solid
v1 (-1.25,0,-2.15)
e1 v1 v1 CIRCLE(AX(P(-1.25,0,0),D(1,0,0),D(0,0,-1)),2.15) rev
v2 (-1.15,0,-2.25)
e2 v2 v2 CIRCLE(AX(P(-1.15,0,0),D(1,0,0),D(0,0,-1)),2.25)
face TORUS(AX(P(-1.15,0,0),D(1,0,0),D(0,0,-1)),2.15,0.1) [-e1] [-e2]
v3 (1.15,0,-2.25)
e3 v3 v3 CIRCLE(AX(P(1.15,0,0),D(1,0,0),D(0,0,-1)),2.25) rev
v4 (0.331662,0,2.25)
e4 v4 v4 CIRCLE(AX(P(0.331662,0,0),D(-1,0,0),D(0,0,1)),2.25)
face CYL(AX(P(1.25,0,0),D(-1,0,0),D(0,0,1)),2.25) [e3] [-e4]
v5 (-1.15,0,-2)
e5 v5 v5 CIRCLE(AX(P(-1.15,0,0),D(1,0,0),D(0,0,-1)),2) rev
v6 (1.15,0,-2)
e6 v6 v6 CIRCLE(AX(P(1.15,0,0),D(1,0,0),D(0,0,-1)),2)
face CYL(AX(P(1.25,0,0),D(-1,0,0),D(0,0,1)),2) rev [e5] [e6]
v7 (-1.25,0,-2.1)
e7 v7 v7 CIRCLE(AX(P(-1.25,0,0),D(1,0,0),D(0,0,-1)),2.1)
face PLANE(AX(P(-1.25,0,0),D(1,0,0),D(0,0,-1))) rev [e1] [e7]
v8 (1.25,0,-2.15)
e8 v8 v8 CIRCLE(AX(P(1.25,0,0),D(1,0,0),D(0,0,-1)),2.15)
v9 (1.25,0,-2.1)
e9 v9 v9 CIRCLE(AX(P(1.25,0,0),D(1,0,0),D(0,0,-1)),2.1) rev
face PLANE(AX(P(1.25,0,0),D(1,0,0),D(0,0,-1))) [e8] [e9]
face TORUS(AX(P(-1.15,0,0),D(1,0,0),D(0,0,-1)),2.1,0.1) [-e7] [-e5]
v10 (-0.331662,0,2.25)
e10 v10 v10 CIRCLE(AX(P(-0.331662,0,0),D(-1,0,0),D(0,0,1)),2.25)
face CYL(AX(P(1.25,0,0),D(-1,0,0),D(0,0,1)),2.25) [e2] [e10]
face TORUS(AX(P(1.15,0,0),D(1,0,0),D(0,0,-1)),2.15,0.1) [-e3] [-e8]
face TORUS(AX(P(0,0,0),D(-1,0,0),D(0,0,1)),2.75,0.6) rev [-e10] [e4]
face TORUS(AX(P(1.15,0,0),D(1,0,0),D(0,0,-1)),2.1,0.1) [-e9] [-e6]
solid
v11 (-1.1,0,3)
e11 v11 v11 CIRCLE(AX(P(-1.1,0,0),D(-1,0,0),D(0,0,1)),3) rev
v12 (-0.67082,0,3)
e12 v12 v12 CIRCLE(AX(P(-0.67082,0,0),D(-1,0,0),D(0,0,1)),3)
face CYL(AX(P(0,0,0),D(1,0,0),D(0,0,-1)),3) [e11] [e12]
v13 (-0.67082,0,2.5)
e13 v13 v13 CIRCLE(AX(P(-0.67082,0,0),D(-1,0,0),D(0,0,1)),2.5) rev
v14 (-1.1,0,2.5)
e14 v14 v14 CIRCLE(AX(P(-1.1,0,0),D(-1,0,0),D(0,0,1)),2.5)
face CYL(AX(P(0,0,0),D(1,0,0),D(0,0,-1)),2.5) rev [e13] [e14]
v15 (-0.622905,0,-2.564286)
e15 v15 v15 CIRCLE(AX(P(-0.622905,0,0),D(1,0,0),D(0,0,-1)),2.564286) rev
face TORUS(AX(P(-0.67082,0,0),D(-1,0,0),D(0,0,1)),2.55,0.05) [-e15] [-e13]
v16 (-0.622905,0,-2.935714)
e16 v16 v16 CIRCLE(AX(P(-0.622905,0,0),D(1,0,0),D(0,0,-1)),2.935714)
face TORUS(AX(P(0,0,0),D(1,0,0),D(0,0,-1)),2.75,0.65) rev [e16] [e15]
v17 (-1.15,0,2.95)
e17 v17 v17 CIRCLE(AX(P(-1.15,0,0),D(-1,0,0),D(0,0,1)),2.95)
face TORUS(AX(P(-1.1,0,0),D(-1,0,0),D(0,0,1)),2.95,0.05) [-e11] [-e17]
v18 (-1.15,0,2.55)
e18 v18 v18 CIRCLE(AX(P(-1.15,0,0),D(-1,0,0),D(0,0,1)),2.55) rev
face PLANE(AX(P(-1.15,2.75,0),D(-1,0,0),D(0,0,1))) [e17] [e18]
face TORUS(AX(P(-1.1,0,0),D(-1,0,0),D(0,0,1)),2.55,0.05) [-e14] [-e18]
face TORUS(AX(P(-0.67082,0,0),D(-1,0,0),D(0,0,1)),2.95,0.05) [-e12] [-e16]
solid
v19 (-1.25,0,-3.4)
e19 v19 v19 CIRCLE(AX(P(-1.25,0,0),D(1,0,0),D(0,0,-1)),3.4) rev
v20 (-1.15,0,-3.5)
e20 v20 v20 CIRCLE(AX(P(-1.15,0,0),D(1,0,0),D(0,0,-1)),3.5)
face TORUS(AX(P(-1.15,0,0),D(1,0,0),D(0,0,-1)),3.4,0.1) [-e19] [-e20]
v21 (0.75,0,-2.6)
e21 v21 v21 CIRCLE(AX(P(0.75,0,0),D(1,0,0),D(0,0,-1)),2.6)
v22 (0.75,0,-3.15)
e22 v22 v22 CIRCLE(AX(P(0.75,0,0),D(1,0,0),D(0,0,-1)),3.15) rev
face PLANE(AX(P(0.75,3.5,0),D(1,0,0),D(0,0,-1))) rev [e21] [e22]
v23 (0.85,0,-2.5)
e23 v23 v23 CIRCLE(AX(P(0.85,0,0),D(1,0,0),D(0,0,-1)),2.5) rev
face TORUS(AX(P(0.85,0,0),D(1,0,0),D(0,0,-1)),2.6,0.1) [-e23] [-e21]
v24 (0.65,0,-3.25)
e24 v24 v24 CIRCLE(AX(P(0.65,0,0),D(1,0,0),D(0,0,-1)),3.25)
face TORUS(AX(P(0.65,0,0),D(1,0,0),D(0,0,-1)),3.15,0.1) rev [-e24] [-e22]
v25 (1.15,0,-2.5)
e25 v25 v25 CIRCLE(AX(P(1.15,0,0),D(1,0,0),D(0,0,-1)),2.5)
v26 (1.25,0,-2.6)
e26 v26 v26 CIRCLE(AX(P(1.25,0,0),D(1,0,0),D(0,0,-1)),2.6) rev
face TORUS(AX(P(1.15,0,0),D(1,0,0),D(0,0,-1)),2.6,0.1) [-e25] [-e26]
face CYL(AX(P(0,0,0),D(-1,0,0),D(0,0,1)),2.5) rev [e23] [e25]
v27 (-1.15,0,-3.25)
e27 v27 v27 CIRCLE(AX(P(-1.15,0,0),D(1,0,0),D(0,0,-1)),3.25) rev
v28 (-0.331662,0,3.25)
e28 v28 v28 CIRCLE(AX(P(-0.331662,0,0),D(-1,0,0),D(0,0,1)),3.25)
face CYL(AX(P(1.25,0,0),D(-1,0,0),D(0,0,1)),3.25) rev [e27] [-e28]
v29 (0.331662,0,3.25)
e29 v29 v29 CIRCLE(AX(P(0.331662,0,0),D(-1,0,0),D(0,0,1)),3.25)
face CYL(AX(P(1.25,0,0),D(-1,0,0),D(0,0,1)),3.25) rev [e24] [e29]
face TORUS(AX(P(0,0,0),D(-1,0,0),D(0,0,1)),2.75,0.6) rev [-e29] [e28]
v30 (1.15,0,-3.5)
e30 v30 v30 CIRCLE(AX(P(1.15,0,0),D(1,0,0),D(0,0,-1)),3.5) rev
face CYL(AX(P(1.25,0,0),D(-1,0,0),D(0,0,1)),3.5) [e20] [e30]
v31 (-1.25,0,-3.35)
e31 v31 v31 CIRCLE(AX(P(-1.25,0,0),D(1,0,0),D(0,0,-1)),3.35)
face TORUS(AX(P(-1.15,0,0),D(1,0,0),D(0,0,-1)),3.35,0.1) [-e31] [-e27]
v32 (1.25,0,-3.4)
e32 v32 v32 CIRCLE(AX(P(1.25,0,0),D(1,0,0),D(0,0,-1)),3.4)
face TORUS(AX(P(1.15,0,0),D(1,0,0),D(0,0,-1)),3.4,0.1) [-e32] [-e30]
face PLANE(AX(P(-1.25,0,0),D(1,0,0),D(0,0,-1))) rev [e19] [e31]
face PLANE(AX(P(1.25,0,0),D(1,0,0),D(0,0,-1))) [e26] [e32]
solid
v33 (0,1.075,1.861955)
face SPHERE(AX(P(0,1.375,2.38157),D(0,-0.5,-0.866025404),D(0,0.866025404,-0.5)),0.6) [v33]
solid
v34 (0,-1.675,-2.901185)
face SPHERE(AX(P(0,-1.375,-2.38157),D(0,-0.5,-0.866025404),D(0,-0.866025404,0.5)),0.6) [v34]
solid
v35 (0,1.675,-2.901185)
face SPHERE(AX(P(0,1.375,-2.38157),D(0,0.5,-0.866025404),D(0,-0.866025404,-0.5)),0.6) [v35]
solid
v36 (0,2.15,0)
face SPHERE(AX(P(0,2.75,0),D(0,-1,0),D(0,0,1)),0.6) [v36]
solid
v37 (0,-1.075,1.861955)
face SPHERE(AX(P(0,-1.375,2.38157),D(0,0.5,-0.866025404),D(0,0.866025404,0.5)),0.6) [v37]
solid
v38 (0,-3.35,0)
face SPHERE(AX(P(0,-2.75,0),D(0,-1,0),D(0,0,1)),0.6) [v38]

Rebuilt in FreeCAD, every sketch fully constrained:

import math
import FreeCAD as App
import Part
import Sketcher
Q = App.Units.Quantity


def edges_at(feature, points):
    """Names of the edges that pass closest to the given points."""
    edges = feature.Shape.Edges
    near = lambda p: min(range(len(edges)), key=lambda i: edges[i].distToShape(Part.Vertex(*p))[0])
    return sorted({f"Edge{near(p) + 1}" for p in points})

doc = App.newDocument("Part")
body = doc.addObject("PartDesign::Body", "Body")

sketch1 = doc.addObject("Sketcher::SketchObject", "Sketch")
body.addObject(sketch1)
sketch1.AttachmentSupport = (doc.YZ_Plane, [""])
sketch1.MapMode = "FlatFace"
sketch1.addGeometry(Part.Circle(App.Vector(0, 0, 0), App.Vector(0, 0, 1), 3.5), False)
sketch1.addGeometry(Part.Circle(App.Vector(0, 0, 0), App.Vector(0, 0, 1), 3.2), False)
sketch1.addConstraint(Sketcher.Constraint("Coincident", 0, 3, -1, 1))
sketch1.addConstraint(Sketcher.Constraint("Coincident", 1, 3, -1, 1))
sketch1.addConstraint(Sketcher.Constraint("Diameter", 0, Q("7 mm")))
sketch1.addConstraint(Sketcher.Constraint("Diameter", 1, Q("6.5 mm")))
pad1 = doc.addObject("PartDesign::Pad", "Pad")
body.addObject(pad1)
pad1.Profile = sketch1
pad1.Length = 2.5
pad1.Midplane = True
body2 = doc.addObject("PartDesign::Body", "Body001")

sketch2 = doc.addObject("Sketcher::SketchObject", "Sketch001")
body2.addObject(sketch2)
sketch2.AttachmentSupport = (doc.getObject("YZ_Plane001"), [""])
sketch2.MapMode = "FlatFace"
sketch2.addGeometry(Part.Circle(App.Vector(0, 0, 0), App.Vector(0, 0, 1), 2.2), False)
sketch2.addGeometry(Part.Circle(App.Vector(0, 0, 0), App.Vector(0, 0, 1), 2), False)
sketch2.addConstraint(Sketcher.Constraint("Coincident", 0, 3, -1, 1))
sketch2.addConstraint(Sketcher.Constraint("Coincident", 1, 3, -1, 1))
sketch2.addConstraint(Sketcher.Constraint("Diameter", 1, Q("4 mm")))
sketch2.addConstraint(Sketcher.Constraint("Diameter", 0, Q("4.5 mm")))
pad2 = doc.addObject("PartDesign::Pad", "Pad001")
body2.addObject(pad2)
pad2.Profile = sketch2
pad2.Length = 2.5
pad2.Midplane = True
body3 = doc.addObject("PartDesign::Body", "Body002")
body3.AllowCompound = True

sketch3 = doc.addObject("Sketcher::SketchObject", "Sketch002")
body3.addObject(sketch3)
sketch3.AttachmentSupport = (doc.getObject("XY_Plane002"), [""])
sketch3.MapMode = "FlatFace"
sketch3.addGeometry(Part.LineSegment(App.Vector(-0.3, 3.2, 0), App.Vector(0.3, 3.2, 0)), False)
sketch3.addGeometry(Part.ArcOfCircle(Part.Circle(App.Vector(0, 2.8, 0), App.Vector(0, 0, 1), 0.6), math.radians(56), math.radians(124)), False)
sketch3.addGeometry(Part.LineSegment(App.Vector(0.3, 2.2, 0), App.Vector(-0.3, 2.2, 0)), False)
sketch3.addGeometry(Part.ArcOfCircle(Part.Circle(App.Vector(0, 2.8, 0), App.Vector(0, 0, 1), 0.6), math.radians(-124), math.radians(-56)), False)
sketch3.addConstraint(Sketcher.Constraint("Coincident", 0, 1, 1, 2))
sketch3.addConstraint(Sketcher.Constraint("Coincident", 1, 1, 0, 2))
sketch3.addConstraint(Sketcher.Constraint("Coincident", 2, 1, 3, 2))
sketch3.addConstraint(Sketcher.Constraint("Coincident", 3, 1, 2, 2))
sketch3.addConstraint(Sketcher.Constraint("Horizontal", 0))
sketch3.addConstraint(Sketcher.Constraint("Horizontal", 2))
sketch3.addConstraint(Sketcher.Constraint("Coincident", 3, 3, 1, 3))
sketch3.addConstraint(Sketcher.Constraint("Equal", 1, 3))
sketch3.addConstraint(Sketcher.Constraint("PointOnObject", 1, 3, -2))
sketch3.addConstraint(Sketcher.Constraint("Vertical", 1, 1, 2, 1))
sketch3.addConstraint(Sketcher.Constraint("Radius", 1, Q("0.6 mm")))
sketch3.addConstraint(Sketcher.Constraint("DistanceY", 2, 1, 1, 1, Q("1 mm")))
sketch3.addConstraint(Sketcher.Constraint("DistanceY", -1, 1, 1, 3, Q("2.75 mm")))
revolution = doc.addObject("PartDesign::Revolution", "Revolution")
body3.addObject(revolution)
revolution.Profile = sketch3
revolution.ReferenceAxis = (sketch3, ["H_Axis"])
revolution.Angle = 360
doc.recompute()

body4 = doc.addObject("PartDesign::Body", "Body003")
body4.BaseFeature = body3
boolean = doc.addObject("PartDesign::Boolean", "Boolean")
body.addObject(boolean)
boolean.Type = "Cut"
boolean.addObjects([body4])
doc.recompute()

sketch4 = doc.addObject("Sketcher::SketchObject", "Sketch003")
body.addObject(sketch4)
sketch4.AttachmentSupport = (doc.XY_Plane, [""])
sketch4.MapMode = "FlatFace"
sketch4.addGeometry(Part.LineSegment(App.Vector(0.8, 3.5, 0), App.Vector(0.8, 2.5, 0)), False)
sketch4.addGeometry(Part.LineSegment(App.Vector(0.8, 2.5, 0), App.Vector(1.2, 2.5, 0)), False)
sketch4.addGeometry(Part.LineSegment(App.Vector(1.2, 2.5, 0), App.Vector(1.2, 3.5, 0)), False)
sketch4.addGeometry(Part.LineSegment(App.Vector(1.2, 3.5, 0), App.Vector(0.8, 3.5, 0)), False)
sketch4.addConstraint(Sketcher.Constraint("Coincident", 0, 2, 1, 1))
sketch4.addConstraint(Sketcher.Constraint("Coincident", 1, 2, 2, 1))
sketch4.addConstraint(Sketcher.Constraint("Coincident", 2, 2, 3, 1))
sketch4.addConstraint(Sketcher.Constraint("Coincident", 3, 2, 0, 1))
sketch4.addConstraint(Sketcher.Constraint("Vertical", 0))
sketch4.addConstraint(Sketcher.Constraint("Horizontal", 1))
sketch4.addConstraint(Sketcher.Constraint("Vertical", 2))
sketch4.addConstraint(Sketcher.Constraint("Horizontal", 3))
sketch4.addConstraint(Sketcher.Constraint("DistanceY", 0, 2, 0, 1, Q("1 mm")))
sketch4.addConstraint(Sketcher.Constraint("DistanceX", 1, 1, 1, 2, Q("0.5 mm")))
sketch4.addConstraint(Sketcher.Constraint("DistanceY", -1, 1, 0, 2, Q("2.5 mm")))
sketch4.addConstraint(Sketcher.Constraint("DistanceX", -1, 1, 0, 2, Q("0.75 mm")))
revolution2 = doc.addObject("PartDesign::Revolution", "Revolution001")
body.addObject(revolution2)
revolution2.Profile = sketch4
revolution2.ReferenceAxis = (sketch4, ["H_Axis"])
revolution2.Angle = 360
doc.recompute()

fillet = doc.addObject("PartDesign::Fillet", "Fillet")
body.addObject(fillet)
fillet.Base = (revolution2, edges_at(revolution2, [
    (0.75, 0, 3.25),
    (1.25, 0, -2.5),
    (0.75, 0, -2.5),
    (-1.25, 0, 3.5),
    (-1.25, 0, 3.25),
    (1.25, 0, 3.5),
]))
fillet.Radius = 0.1
doc.recompute()

boolean2 = doc.addObject("PartDesign::Boolean", "Boolean001")
body2.addObject(boolean2)
boolean2.Type = "Cut"
boolean2.addObjects([body3])
doc.recompute()

fillet2 = doc.addObject("PartDesign::Fillet", "Fillet001")
body2.addObject(fillet2)
fillet2.Base = (boolean2, edges_at(boolean2, [
    (-1.25, 0, 2.25),
    (-1.25, 0, 2),
    (1.25, 0, 2),
    (1.25, 0, 2.25),
]))
fillet2.Radius = 0.1
body5 = doc.addObject("PartDesign::Body", "Body004")
body5.AllowCompound = True

sketch5 = doc.addObject("Sketcher::SketchObject", "Sketch004")
body5.addObject(sketch5)
sketch5.AttachmentSupport = (doc.getObject("YZ_Plane004"), [""])
sketch5.MapMode = "FlatFace"
sketch5.addGeometry(Part.LineSegment(App.Vector(3.4, 0, 0), App.Vector(2.1, 0, 0)), False)
sketch5.addGeometry(Part.ArcOfCircle(Part.Circle(App.Vector(2.8, 0, 0), App.Vector(0, 0, 1), 0.6), math.radians(180), math.radians(360)), False)
sketch5.addGeometry(Part.LineSegment(App.Vector(-3.4, 0, 0), App.Vector(-2.1, 0, 0)), False)
sketch5.addGeometry(Part.ArcOfCircle(Part.Circle(App.Vector(-2.8, 0, 0), App.Vector(0, 0, 1), 0.6), math.radians(0), math.radians(180)), False)
sketch5.addConstraint(Sketcher.Constraint("Coincident", 0, 1, 1, 2))
sketch5.addConstraint(Sketcher.Constraint("Coincident", 1, 1, 0, 2))
sketch5.addConstraint(Sketcher.Constraint("Coincident", 2, 1, 3, 2))
sketch5.addConstraint(Sketcher.Constraint("Coincident", 3, 1, 2, 2))
sketch5.addConstraint(Sketcher.Constraint("Horizontal", 0))
sketch5.addConstraint(Sketcher.Constraint("Horizontal", 2))
sketch5.addConstraint(Sketcher.Constraint("Equal", 1, 3))
sketch5.addConstraint(Sketcher.Constraint("Symmetric", 1, 3, 3, 3, -1, 1))
sketch5.addConstraint(Sketcher.Constraint("PointOnObject", 1, 3, -1))
sketch5.addConstraint(Sketcher.Constraint("PointOnObject", 0, 1, -1))
sketch5.addConstraint(Sketcher.Constraint("PointOnObject", 2, 1, -1))
sketch5.addConstraint(Sketcher.Constraint("Radius", 1, Q("0.6 mm")))
sketch5.addConstraint(Sketcher.Constraint("DistanceX", 3, 3, 1, 3, Q("5.5 mm")))
revolution3 = doc.addObject("PartDesign::Revolution", "Revolution002")
body5.addObject(revolution3)
revolution3.Profile = sketch5
revolution3.ReferenceAxis = (sketch5, ["H_Axis"])
revolution3.Angle = 360
body6 = doc.addObject("PartDesign::Body", "Body005")
body6.AllowCompound = True

sketch6 = doc.addObject("Sketcher::SketchObject", "Sketch005")
body6.addObject(sketch6)
sketch6.AttachmentSupport = (doc.getObject("YZ_Plane005"), [""])
sketch6.MapMode = "FlatFace"
sketch6.addGeometry(Part.LineSegment(App.Vector(1.7, -2.9, 0), App.Vector(1.1, -1.9, 0)), False)
sketch6.addGeometry(Part.ArcOfCircle(Part.Circle(App.Vector(1.4, -2.4, 0), App.Vector(0, 0, 1), 0.6), math.radians(120), math.radians(300)), False)
sketch6.addGeometry(Part.LineSegment(App.Vector(-1.7, 2.9, 0), App.Vector(-1.1, 1.9, 0)), False)
sketch6.addGeometry(Part.ArcOfCircle(Part.Circle(App.Vector(-1.4, 2.4, 0), App.Vector(0, 0, 1), 0.6), math.radians(-60), math.radians(120)), False)
sketch6.addGeometry(Part.LineSegment(App.Vector(1.7, -2.9, 0), App.Vector(-1.7, 2.9, 0)), True)
sketch6.addConstraint(Sketcher.Constraint("Coincident", 0, 1, 1, 2))
sketch6.addConstraint(Sketcher.Constraint("Coincident", 1, 1, 0, 2))
sketch6.addConstraint(Sketcher.Constraint("Coincident", 2, 1, 3, 2))
sketch6.addConstraint(Sketcher.Constraint("Coincident", 3, 1, 2, 2))
sketch6.addConstraint(Sketcher.Constraint("Coincident", 4, 1, 0, 1))
sketch6.addConstraint(Sketcher.Constraint("Coincident", 4, 2, 2, 1))
sketch6.addConstraint(Sketcher.Constraint("Equal", 1, 3))
sketch6.addConstraint(Sketcher.Constraint("Symmetric", 1, 3, 3, 3, -1, 1))
sketch6.addConstraint(Sketcher.Constraint("Parallel", 0, 2))
sketch6.addConstraint(Sketcher.Constraint("Parallel", 2, 4))
sketch6.addConstraint(Sketcher.Constraint("Radius", 1, Q("0.6 mm")))
sketch6.addConstraint(Sketcher.Constraint("Angle", 0, Q("120 deg")))
sketch6.addConstraint(Sketcher.Constraint("Distance", 4, Q("6.7 mm")))
sketch6.addConstraint(Sketcher.Constraint("DistanceX", 1, 3, 0, 1, Q("0.3 mm")))
sketch6.addConstraint(Sketcher.Constraint("DistanceX", 2, 1, 3, 3, Q("0.3 mm")))
revolution4 = doc.addObject("PartDesign::Revolution", "Revolution003")
body6.addObject(revolution4)
revolution4.Profile = sketch6
revolution4.ReferenceAxis = (sketch6, ["Axis0"])
revolution4.Angle = 360
body7 = doc.addObject("PartDesign::Body", "Body006")
body7.AllowCompound = True

sketch7 = doc.addObject("Sketcher::SketchObject", "Sketch006")
body7.addObject(sketch7)
sketch7.AttachmentSupport = (doc.getObject("YZ_Plane006"), [""])
sketch7.MapMode = "FlatFace"
sketch7.addGeometry(Part.LineSegment(App.Vector(1.4, 2.4, 0), App.Vector(1.1, 1.9, 0)), False)
sketch7.addGeometry(Part.ArcOfCircle(Part.Circle(App.Vector(1.4, 2.4, 0), App.Vector(0, 0, 1), 0.6), math.radians(-120), math.radians(60)), False)
sketch7.addGeometry(Part.LineSegment(App.Vector(1.7, 2.9, 0), App.Vector(1.4, 2.4, 0)), False)
sketch7.addGeometry(Part.LineSegment(App.Vector(-1.4, -2.4, 0), App.Vector(-1.1, -1.9, 0)), False)
sketch7.addGeometry(Part.ArcOfCircle(Part.Circle(App.Vector(-1.4, -2.4, 0), App.Vector(0, 0, 1), 0.6), math.radians(60), math.radians(240)), False)
sketch7.addGeometry(Part.LineSegment(App.Vector(-1.7, -2.9, 0), App.Vector(-1.4, -2.4, 0)), False)
sketch7.addGeometry(Part.LineSegment(App.Vector(-1.7, -2.9, 0), App.Vector(1.7, 2.9, 0)), True)
sketch7.addConstraint(Sketcher.Constraint("Coincident", 0, 2, 1, 1))
sketch7.addConstraint(Sketcher.Constraint("Coincident", 1, 2, 2, 1))
sketch7.addConstraint(Sketcher.Constraint("Coincident", 2, 2, 0, 1))
sketch7.addConstraint(Sketcher.Constraint("Coincident", 3, 2, 4, 1))
sketch7.addConstraint(Sketcher.Constraint("Coincident", 4, 2, 5, 1))
sketch7.addConstraint(Sketcher.Constraint("Coincident", 5, 2, 3, 1))
sketch7.addConstraint(Sketcher.Constraint("Coincident", 2, 2, 1, 3))
sketch7.addConstraint(Sketcher.Constraint("Coincident", 5, 2, 4, 3))
sketch7.addConstraint(Sketcher.Constraint("Coincident", 6, 1, 4, 2))
sketch7.addConstraint(Sketcher.Constraint("Coincident", 6, 2, 1, 2))
sketch7.addConstraint(Sketcher.Constraint("Equal", 1, 4))
sketch7.addConstraint(Sketcher.Constraint("Symmetric", 1, 3, 4, 3, -1, 1))
sketch7.addConstraint(Sketcher.Constraint("Parallel", 0, 2))
sketch7.addConstraint(Sketcher.Constraint("Parallel", 2, 3))
sketch7.addConstraint(Sketcher.Constraint("Parallel", 3, 5))
sketch7.addConstraint(Sketcher.Constraint("Parallel", 5, 6))
sketch7.addConstraint(Sketcher.Constraint("Radius", 1, Q("0.6 mm")))
sketch7.addConstraint(Sketcher.Constraint("Angle", 0, Q("-120 deg")))
sketch7.addConstraint(Sketcher.Constraint("Distance", 6, Q("6.7 mm")))
revolution5 = doc.addObject("PartDesign::Revolution", "Revolution004")
body7.addObject(revolution5)
revolution5.Profile = sketch7
revolution5.ReferenceAxis = (sketch7, ["Axis0"])
revolution5.Angle = 360
body8 = doc.addObject("PartDesign::Body", "Body007")

sketch8 = doc.addObject("Sketcher::SketchObject", "Sketch007")
body8.addObject(sketch8)
sketch8.AttachmentSupport = (doc.getObject("XY_Plane007"), [""])
sketch8.MapMode = "FlatFace"
sketch8.addGeometry(Part.LineSegment(App.Vector(-0.6, 3, 0), App.Vector(-1.1, 3, 0)), False)
sketch8.addGeometry(Part.LineSegment(App.Vector(-1.1, 3, 0), App.Vector(-1.1, 2.5, 0)), False)
sketch8.addGeometry(Part.LineSegment(App.Vector(-1.1, 2.5, 0), App.Vector(-0.6, 2.5, 0)), False)
sketch8.addGeometry(Part.ArcOfCircle(Part.Circle(App.Vector(0, 2.8, 0), App.Vector(0, 0, 1), 0.7), math.radians(157), math.radians(203)), False)
sketch8.addConstraint(Sketcher.Constraint("Coincident", 0, 2, 1, 1))
sketch8.addConstraint(Sketcher.Constraint("Coincident", 1, 2, 2, 1))
sketch8.addConstraint(Sketcher.Constraint("Coincident", 2, 2, 3, 2))
sketch8.addConstraint(Sketcher.Constraint("Coincident", 3, 1, 0, 1))
sketch8.addConstraint(Sketcher.Constraint("Horizontal", 0))
sketch8.addConstraint(Sketcher.Constraint("Vertical", 1))
sketch8.addConstraint(Sketcher.Constraint("Horizontal", 2))
sketch8.addConstraint(Sketcher.Constraint("PointOnObject", 3, 3, -2))
sketch8.addConstraint(Sketcher.Constraint("Vertical", 2, 2, 3, 1))
sketch8.addConstraint(Sketcher.Constraint("Radius", 3, Q("0.65 mm")))
sketch8.addConstraint(Sketcher.Constraint("DistanceY", 1, 2, 1, 1, Q("0.5 mm")))
sketch8.addConstraint(Sketcher.Constraint("DistanceY", -1, 1, 0, 2, Q("3 mm")))
sketch8.addConstraint(Sketcher.Constraint("DistanceX", 0, 2, 0, 1, Q("0.55 mm")))
revolution6 = doc.addObject("PartDesign::Revolution", "Revolution005")
body8.addObject(revolution6)
revolution6.Profile = sketch8
revolution6.ReferenceAxis = (sketch8, ["H_Axis"])
revolution6.Angle = 360
doc.recompute()

fillet3 = doc.addObject("PartDesign::Fillet", "Fillet002")
body8.addObject(fillet3)
fillet3.Base = (revolution6, edges_at(revolution6, [
    (-1.15, 0, -3),
    (-0.6, 0, -3),
    (-0.6, 0, -2.5),
    (-1.15, 0, -2.5),
]))
fillet3.Radius = 0.05

doc.recompute()
